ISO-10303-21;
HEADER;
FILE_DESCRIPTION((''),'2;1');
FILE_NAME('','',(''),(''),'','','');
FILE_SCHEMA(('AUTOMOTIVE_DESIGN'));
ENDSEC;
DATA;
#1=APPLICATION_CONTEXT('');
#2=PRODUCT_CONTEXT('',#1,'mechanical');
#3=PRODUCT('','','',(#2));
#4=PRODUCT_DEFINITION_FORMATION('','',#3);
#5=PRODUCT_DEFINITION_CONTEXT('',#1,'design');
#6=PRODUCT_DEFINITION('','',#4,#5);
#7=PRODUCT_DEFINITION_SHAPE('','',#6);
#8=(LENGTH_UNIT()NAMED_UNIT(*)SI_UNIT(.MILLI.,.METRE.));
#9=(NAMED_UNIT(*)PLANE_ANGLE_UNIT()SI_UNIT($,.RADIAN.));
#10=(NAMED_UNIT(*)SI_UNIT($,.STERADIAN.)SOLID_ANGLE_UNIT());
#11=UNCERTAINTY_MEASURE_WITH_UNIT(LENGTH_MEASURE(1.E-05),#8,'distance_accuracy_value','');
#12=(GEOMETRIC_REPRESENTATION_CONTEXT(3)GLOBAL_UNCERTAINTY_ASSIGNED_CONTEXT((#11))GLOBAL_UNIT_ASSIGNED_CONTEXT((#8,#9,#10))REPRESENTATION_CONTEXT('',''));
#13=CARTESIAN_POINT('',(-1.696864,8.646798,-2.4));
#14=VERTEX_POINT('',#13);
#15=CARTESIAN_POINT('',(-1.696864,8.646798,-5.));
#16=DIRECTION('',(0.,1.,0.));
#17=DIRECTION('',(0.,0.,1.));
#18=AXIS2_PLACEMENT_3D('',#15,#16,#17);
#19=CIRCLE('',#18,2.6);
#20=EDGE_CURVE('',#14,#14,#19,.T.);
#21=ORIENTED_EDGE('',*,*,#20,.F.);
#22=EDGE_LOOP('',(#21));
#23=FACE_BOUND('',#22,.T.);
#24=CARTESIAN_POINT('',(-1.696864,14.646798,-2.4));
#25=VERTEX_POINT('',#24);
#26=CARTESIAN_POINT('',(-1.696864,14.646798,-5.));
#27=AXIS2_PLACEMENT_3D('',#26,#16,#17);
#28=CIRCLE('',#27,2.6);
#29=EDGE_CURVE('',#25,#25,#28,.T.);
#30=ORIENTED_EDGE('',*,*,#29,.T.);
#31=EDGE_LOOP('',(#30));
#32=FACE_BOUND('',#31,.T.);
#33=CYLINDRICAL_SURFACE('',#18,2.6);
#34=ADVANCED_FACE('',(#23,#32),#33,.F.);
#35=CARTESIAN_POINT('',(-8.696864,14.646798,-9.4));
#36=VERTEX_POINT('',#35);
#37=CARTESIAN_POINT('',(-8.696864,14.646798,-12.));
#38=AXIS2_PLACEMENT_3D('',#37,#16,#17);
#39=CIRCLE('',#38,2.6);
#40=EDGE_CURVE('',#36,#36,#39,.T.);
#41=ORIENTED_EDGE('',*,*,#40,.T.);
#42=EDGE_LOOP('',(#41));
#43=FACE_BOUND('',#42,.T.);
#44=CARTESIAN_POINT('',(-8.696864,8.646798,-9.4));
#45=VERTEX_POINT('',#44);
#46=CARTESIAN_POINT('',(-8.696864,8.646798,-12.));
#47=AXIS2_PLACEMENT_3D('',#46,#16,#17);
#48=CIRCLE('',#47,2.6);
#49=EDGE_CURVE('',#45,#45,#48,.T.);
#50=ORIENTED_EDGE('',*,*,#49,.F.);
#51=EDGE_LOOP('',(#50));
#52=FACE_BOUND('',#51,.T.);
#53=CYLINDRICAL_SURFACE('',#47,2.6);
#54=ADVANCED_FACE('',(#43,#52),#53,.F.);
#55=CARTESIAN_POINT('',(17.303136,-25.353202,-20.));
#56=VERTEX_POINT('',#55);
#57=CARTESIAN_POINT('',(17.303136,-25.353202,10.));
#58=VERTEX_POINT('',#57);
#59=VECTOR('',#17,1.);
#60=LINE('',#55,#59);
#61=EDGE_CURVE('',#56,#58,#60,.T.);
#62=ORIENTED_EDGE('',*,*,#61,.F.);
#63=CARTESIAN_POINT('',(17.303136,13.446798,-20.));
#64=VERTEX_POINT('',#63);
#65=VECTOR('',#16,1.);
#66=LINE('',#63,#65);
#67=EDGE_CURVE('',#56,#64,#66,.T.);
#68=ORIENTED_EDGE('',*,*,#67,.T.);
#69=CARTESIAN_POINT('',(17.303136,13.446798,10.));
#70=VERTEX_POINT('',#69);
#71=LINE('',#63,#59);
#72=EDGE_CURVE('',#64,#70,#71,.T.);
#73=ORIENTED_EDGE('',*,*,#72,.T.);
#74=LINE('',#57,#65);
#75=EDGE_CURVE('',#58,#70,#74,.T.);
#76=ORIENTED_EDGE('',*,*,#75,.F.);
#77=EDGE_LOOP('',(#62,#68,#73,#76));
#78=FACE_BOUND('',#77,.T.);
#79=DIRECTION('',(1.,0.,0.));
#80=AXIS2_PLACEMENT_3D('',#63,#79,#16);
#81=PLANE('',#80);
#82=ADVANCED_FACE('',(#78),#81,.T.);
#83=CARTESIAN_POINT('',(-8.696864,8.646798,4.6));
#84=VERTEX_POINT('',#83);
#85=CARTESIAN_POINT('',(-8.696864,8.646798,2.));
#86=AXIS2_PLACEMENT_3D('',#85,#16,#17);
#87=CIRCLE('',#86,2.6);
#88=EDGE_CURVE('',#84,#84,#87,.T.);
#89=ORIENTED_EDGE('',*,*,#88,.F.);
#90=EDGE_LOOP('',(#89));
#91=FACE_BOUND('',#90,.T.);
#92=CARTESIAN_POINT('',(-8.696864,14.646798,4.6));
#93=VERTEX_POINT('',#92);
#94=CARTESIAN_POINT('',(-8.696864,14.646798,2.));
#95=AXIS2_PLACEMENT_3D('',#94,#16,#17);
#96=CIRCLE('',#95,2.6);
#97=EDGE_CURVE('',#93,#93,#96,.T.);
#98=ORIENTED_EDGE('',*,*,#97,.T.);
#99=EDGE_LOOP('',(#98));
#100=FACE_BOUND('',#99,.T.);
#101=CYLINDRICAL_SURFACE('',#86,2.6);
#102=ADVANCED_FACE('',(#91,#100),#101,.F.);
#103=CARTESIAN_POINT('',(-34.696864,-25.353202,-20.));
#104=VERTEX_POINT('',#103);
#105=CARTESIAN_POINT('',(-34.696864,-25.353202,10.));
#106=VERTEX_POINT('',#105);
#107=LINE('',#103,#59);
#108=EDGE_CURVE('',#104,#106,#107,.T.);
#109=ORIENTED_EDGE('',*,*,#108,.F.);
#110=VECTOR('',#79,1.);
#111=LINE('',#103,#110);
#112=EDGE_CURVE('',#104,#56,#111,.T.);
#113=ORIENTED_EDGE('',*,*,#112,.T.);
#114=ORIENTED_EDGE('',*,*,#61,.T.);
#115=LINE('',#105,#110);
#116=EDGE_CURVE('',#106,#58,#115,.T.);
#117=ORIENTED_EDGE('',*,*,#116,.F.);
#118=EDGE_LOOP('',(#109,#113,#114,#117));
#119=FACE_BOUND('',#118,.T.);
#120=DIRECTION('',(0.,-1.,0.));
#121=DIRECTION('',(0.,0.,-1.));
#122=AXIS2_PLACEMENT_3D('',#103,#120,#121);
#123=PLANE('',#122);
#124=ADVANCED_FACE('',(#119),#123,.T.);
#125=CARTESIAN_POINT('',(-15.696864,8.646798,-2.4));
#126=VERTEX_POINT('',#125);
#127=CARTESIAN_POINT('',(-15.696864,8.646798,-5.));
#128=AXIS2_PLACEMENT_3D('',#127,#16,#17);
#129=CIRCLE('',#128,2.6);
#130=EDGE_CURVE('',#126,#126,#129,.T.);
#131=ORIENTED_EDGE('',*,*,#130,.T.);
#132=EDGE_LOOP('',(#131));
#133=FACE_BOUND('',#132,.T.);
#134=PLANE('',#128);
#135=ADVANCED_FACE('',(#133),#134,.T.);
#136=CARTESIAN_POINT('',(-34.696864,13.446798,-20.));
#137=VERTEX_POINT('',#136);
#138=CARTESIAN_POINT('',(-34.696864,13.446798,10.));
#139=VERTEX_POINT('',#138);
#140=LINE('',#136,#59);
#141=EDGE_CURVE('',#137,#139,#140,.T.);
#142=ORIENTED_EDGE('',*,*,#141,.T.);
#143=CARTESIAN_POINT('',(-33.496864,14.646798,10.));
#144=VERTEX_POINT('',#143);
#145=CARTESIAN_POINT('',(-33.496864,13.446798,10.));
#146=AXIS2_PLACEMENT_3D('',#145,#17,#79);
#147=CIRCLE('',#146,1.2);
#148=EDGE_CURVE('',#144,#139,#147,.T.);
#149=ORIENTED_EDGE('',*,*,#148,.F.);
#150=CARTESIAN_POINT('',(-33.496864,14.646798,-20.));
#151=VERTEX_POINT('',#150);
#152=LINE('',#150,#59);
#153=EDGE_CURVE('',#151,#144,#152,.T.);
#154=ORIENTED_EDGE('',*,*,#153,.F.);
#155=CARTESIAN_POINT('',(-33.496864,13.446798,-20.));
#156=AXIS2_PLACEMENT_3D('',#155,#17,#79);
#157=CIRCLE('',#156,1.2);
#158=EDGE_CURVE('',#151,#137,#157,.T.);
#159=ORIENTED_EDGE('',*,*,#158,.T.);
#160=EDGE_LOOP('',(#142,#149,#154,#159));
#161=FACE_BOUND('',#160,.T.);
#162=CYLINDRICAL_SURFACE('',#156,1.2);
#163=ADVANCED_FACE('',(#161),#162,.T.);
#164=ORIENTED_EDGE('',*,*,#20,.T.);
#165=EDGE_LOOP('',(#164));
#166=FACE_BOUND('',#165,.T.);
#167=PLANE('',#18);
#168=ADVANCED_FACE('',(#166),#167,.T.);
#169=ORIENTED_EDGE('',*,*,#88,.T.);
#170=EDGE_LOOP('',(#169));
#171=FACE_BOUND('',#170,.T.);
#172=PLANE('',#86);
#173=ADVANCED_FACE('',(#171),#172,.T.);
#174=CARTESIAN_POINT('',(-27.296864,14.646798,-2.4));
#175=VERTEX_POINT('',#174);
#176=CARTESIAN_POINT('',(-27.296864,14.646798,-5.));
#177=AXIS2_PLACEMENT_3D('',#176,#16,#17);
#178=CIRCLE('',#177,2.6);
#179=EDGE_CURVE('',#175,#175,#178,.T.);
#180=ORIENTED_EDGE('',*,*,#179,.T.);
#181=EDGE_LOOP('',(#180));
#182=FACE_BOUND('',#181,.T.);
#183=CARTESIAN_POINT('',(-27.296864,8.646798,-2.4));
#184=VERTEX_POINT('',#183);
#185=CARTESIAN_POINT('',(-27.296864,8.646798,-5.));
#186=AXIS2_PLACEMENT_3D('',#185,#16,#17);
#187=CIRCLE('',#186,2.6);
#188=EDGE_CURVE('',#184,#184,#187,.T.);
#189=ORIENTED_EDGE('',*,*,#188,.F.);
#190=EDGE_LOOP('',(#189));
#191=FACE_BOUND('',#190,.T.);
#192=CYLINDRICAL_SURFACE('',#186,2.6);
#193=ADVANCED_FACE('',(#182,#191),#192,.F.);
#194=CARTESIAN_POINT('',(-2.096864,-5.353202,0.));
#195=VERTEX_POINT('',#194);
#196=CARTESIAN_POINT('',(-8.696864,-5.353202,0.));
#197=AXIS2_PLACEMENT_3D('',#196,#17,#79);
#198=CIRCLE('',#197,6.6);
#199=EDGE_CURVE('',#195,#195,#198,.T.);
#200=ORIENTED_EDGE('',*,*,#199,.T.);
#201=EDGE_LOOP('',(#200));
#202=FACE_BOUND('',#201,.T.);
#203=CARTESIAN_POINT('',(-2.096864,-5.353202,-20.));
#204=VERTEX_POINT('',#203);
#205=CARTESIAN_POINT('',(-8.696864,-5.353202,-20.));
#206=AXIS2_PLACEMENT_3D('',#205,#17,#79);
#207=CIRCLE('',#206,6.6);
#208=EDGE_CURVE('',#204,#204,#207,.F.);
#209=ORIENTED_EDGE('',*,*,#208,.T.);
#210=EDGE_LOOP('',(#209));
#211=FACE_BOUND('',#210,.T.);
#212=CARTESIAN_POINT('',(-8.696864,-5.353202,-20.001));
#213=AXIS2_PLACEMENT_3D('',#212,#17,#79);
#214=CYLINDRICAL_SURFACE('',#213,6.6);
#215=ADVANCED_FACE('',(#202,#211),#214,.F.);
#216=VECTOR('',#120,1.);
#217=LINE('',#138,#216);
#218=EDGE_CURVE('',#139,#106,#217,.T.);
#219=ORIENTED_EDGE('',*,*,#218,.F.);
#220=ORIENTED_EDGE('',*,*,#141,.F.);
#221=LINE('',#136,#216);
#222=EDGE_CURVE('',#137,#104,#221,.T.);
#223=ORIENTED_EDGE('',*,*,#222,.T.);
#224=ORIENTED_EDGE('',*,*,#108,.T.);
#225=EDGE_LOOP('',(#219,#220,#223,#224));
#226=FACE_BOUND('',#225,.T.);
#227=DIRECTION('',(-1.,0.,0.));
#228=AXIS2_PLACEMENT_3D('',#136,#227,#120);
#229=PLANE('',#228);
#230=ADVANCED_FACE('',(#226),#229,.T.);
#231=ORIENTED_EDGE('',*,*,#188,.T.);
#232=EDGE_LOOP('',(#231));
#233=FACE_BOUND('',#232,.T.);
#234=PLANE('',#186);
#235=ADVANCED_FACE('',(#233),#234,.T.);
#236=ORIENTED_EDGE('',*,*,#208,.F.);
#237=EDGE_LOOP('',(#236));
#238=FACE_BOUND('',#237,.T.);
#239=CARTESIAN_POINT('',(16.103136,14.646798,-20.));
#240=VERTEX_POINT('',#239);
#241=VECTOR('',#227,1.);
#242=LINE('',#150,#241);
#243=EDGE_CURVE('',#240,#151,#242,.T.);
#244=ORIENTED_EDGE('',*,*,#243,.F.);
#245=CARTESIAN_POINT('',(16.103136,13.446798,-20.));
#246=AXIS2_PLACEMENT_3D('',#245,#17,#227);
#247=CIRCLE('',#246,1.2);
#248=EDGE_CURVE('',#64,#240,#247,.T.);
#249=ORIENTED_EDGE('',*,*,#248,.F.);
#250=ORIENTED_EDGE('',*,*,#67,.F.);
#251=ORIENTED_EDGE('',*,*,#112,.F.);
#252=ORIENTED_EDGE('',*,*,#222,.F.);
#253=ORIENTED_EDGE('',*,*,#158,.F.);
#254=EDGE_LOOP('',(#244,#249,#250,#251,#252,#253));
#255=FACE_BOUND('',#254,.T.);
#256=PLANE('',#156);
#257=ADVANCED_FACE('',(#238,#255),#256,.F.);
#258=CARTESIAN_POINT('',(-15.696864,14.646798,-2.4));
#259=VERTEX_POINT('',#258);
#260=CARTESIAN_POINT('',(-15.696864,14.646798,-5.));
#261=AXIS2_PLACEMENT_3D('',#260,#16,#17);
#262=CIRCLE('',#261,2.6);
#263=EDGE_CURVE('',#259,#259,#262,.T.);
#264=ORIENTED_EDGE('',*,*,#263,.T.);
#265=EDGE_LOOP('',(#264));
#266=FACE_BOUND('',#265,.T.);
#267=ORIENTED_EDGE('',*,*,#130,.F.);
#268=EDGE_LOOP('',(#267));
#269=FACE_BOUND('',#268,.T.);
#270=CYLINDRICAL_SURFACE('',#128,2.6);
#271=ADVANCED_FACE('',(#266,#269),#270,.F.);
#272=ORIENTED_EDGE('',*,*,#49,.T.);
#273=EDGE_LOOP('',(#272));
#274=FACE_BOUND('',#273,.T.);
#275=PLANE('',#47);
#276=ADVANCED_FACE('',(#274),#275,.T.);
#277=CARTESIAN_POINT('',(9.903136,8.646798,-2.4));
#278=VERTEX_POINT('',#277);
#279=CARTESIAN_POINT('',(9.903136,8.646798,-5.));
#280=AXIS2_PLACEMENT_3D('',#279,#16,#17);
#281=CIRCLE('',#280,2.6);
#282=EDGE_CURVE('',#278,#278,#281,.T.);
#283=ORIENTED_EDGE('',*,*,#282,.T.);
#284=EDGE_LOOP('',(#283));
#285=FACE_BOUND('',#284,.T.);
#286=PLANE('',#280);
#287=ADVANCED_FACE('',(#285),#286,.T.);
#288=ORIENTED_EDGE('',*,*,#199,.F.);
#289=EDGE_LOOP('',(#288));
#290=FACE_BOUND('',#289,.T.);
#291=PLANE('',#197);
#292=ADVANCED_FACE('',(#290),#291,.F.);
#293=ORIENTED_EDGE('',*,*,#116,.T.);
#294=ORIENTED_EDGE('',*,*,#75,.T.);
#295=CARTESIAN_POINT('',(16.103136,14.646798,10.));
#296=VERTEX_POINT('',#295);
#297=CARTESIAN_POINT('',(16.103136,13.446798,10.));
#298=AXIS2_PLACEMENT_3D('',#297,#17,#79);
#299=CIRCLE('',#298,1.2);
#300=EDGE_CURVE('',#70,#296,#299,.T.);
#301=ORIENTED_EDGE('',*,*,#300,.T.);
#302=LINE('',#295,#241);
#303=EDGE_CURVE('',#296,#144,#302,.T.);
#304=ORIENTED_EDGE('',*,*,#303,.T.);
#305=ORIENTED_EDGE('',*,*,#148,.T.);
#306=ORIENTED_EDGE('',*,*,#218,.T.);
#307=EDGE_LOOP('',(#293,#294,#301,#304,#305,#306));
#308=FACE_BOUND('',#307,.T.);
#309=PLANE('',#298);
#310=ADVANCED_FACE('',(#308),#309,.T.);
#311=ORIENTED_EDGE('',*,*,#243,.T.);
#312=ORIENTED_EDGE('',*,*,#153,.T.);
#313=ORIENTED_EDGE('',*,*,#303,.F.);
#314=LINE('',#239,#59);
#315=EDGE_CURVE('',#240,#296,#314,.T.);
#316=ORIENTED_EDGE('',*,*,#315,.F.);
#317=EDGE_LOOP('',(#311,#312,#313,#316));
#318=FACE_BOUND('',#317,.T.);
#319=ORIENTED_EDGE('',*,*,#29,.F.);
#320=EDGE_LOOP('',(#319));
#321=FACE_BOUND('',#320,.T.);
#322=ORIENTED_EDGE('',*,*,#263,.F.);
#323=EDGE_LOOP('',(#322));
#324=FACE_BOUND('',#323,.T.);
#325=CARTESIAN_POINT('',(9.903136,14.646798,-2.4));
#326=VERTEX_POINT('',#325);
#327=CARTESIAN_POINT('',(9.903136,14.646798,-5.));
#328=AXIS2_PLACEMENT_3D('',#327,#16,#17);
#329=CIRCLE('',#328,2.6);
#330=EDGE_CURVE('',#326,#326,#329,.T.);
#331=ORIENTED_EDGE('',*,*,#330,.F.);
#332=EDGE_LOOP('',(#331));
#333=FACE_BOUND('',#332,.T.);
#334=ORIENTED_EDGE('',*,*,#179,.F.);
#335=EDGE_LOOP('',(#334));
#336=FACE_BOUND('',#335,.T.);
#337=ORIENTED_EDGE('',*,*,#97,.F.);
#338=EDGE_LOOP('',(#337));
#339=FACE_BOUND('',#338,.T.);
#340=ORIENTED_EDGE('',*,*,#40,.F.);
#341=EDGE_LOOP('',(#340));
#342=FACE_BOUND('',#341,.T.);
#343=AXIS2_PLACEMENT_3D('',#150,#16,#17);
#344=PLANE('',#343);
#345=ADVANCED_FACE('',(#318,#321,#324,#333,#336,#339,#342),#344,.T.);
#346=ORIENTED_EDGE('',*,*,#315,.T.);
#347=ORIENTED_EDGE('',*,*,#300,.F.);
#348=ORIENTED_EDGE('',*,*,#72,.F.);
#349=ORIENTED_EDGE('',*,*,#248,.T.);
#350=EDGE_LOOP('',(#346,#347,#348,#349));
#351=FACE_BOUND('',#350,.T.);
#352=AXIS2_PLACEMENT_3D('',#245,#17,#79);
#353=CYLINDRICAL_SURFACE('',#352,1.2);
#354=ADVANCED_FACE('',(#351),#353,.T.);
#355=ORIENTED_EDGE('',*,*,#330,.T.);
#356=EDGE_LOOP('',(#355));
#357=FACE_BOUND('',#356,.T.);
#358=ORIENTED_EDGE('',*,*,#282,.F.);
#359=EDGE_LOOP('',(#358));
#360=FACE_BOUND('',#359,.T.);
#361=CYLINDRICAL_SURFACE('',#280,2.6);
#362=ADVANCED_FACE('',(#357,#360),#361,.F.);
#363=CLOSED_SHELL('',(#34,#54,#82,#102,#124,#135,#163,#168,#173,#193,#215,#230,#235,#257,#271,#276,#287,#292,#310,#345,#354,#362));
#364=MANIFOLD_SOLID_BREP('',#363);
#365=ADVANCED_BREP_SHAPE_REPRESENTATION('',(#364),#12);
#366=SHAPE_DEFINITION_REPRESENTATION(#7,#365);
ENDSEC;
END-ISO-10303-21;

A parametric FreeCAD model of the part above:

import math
import FreeCAD as App
import Part
import Sketcher

V = App.Vector
Q = App.Units.Quantity

doc = App.newDocument("Part")
body = doc.addObject("PartDesign::Body", "Body")

# Sketch on XY plane
sketch1 = body.newObject("Sketcher::SketchObject", "Sketch")
sketch1.AttachmentSupport = (doc.getObject("XY_Plane"), [""])
sketch1.MapMode = "FlatFace"
sketch1.addGeometry(Part.LineSegment(V(16.1, 14.6, 0), V(-33.5, 14.6, 0)), False)
sketch1.addGeometry(Part.ArcOfCircle(Part.Circle(V(-33.5, 13.4, 0), V(0, 0, 1), 1.2), math.radians(90), math.radians(180)), False)
sketch1.addGeometry(Part.LineSegment(V(-34.7, 13.4, 0), V(-34.7, -25.4, 0)), False)
sketch1.addGeometry(Part.LineSegment(V(-34.7, -25.4, 0), V(17.3, -25.4, 0)), False)
sketch1.addGeometry(Part.LineSegment(V(17.3, -25.4, 0), V(17.3, 13.4, 0)), False)
sketch1.addGeometry(Part.ArcOfCircle(Part.Circle(V(16.1, 13.4, 0), V(0, 0, 1), 1.2), math.radians(0), math.radians(90)), False)
sketch1.addConstraint(Sketcher.Constraint("Tangent", 0, 2, 1, 1))
sketch1.addConstraint(Sketcher.Constraint("Tangent", 1, 2, 2, 1))
sketch1.addConstraint(Sketcher.Constraint("Coincident", 2, 2, 3, 1))
sketch1.addConstraint(Sketcher.Constraint("Coincident", 3, 2, 4, 1))
sketch1.addConstraint(Sketcher.Constraint("Tangent", 4, 2, 5, 1))
sketch1.addConstraint(Sketcher.Constraint("Tangent", 5, 2, 0, 1))
sketch1.addConstraint(Sketcher.Constraint("Horizontal", 0))
sketch1.addConstraint(Sketcher.Constraint("Vertical", 2))
sketch1.addConstraint(Sketcher.Constraint("Horizontal", 3))
sketch1.addConstraint(Sketcher.Constraint("Vertical", 4))
sketch1.addConstraint(Sketcher.Constraint("Equal", 1, 5))
sketch1.addConstraint(Sketcher.Constraint("Radius", 1, Q("1.2 mm")))
sketch1.addConstraint(Sketcher.Constraint("DistanceX", 3, 1, 3, 2, Q("52 mm")))
sketch1.addConstraint(Sketcher.Constraint("DistanceY", 2, 2, 2, 1, Q("38.8 mm")))
sketch1.addConstraint(Sketcher.Constraint("DistanceY", -1, 1, 1, 3, Q("13.446798 mm")))
sketch1.addConstraint(Sketcher.Constraint("DistanceX", 1, 3, -1, 1, Q("33.496864 mm")))
pad1 = body.newObject("PartDesign::Pad", "Pad")
pad1.Profile = sketch1
pad1.Length = 20
pad1.Reversed = True

# Sketch on XY plane
sketch2 = body.newObject("Sketcher::SketchObject", "Sketch001")
sketch2.AttachmentSupport = (doc.getObject("XY_Plane"), [""])
sketch2.MapMode = "FlatFace"
sketch2.AttachmentOffset = App.Placement(V(0, 0, 10), App.Rotation())
sketch2.addGeometry(Part.LineSegment(V(17.3, -25.4, 0), V(17.3, 13.4, 0)), False)
sketch2.addGeometry(Part.ArcOfCircle(Part.Circle(V(16.1, 13.4, 0), V(0, 0, 1), 1.2), math.radians(0), math.radians(90)), False)
sketch2.addGeometry(Part.LineSegment(V(16.1, 14.6, 0), V(-33.5, 14.6, 0)), False)
sketch2.addGeometry(Part.ArcOfCircle(Part.Circle(V(-33.5, 13.4, 0), V(0, 0, 1), 1.2), math.radians(90), math.radians(180)), False)
sketch2.addGeometry(Part.LineSegment(V(-34.7, 13.4, 0), V(-34.7, -25.4, 0)), False)
sketch2.addGeometry(Part.LineSegment(V(-34.7, -25.4, 0), V(17.3, -25.4, 0)), False)
sketch2.addConstraint(Sketcher.Constraint("Tangent", 0, 2, 1, 1))
sketch2.addConstraint(Sketcher.Constraint("Tangent", 1, 2, 2, 1))
sketch2.addConstraint(Sketcher.Constraint("Tangent", 2, 2, 3, 1))
sketch2.addConstraint(Sketcher.Constraint("Tangent", 3, 2, 4, 1))
sketch2.addConstraint(Sketcher.Constraint("Coincident", 4, 2, 5, 1))
sketch2.addConstraint(Sketcher.Constraint("Coincident", 5, 2, 0, 1))
sketch2.addConstraint(Sketcher.Constraint("Vertical", 0))
sketch2.addConstraint(Sketcher.Constraint("Horizontal", 2))
sketch2.addConstraint(Sketcher.Constraint("Vertical", 4))
sketch2.addConstraint(Sketcher.Constraint("Horizontal", 5))
sketch2.addConstraint(Sketcher.Constraint("Equal", 1, 3))
sketch2.addConstraint(Sketcher.Constraint("Radius", 1, Q("1.2 mm")))
sketch2.addConstraint(Sketcher.Constraint("DistanceX", 5, 1, 5, 2, Q("52 mm")))
sketch2.addConstraint(Sketcher.Constraint("DistanceY", 0, 1, 0, 2, Q("38.8 mm")))
sketch2.addConstraint(Sketcher.Constraint("DistanceY", -1, 1, 1, 3, Q("13.446798 mm")))
sketch2.addConstraint(Sketcher.Constraint("DistanceX", -1, 1, 1, 3, Q("16.103136 mm")))
pad2 = body.newObject("PartDesign::Pad", "Pad001")
pad2.Profile = sketch2
pad2.Length = 10
pad2.Reversed = True

# Sketch on XZ plane
sketch3 = body.newObject("Sketcher::SketchObject", "Sketch002")
sketch3.AttachmentSupport = (doc.getObject("XZ_Plane"), [""])
sketch3.MapMode = "FlatFace"
sketch3.AttachmentOffset = App.Placement(V(0, 0, -14.646798), App.Rotation())
sketch3.addGeometry(Part.Circle(V(-27.3, -5, 0), V(0, 0, 1), 2.6), False)
sketch3.addGeometry(Part.Circle(V(-15.7, -5, 0), V(0, 0, 1), 2.6), False)
sketch3.addGeometry(Part.Circle(V(-8.7, -12, 0), V(0, 0, 1), 2.6), False)
sketch3.addGeometry(Part.Circle(V(-8.7, 2, 0), V(0, 0, 1), 2.6), False)
sketch3.addGeometry(Part.Circle(V(-1.7, -5, 0), V(0, 0, 1), 2.6), False)
sketch3.addGeometry(Part.Circle(V(9.9, -5, 0), V(0, 0, 1), 2.6), False)
sketch3.addConstraint(Sketcher.Constraint("Equal", 0, 1))
sketch3.addConstraint(Sketcher.Constraint("Equal", 1, 2))
sketch3.addConstraint(Sketcher.Constraint("Equal", 2, 3))
sketch3.addConstraint(Sketcher.Constraint("Equal", 3, 4))
sketch3.addConstraint(Sketcher.Constraint("Equal", 4, 5))
sketch3.addConstraint(Sketcher.Constraint("Horizontal", 0, 3, 1, 3))
sketch3.addConstraint(Sketcher.Constraint("Horizontal", 1, 3, 4, 3))
sketch3.addConstraint(Sketcher.Constraint("Horizontal", 4, 3, 5, 3))
sketch3.addConstraint(Sketcher.Constraint("Vertical", 2, 3, 3, 3))
sketch3.addConstraint(Sketcher.Constraint("Diameter", 0, Q("5.2 mm")))
sketch3.addConstraint(Sketcher.Constraint("DistanceY", 0, 3, -1, 1, Q("5 mm")))
sketch3.addConstraint(Sketcher.Constraint("DistanceY", 2, 3, -1, 1, Q("12 mm")))
sketch3.addConstraint(Sketcher.Constraint("DistanceY", -1, 1, 3, 3, Q("2 mm")))
sketch3.addConstraint(Sketcher.Constraint("DistanceX", 1, 3, 2, 3, Q("7 mm")))
sketch3.addConstraint(Sketcher.Constraint("DistanceX", 2, 3, 4, 3, Q("7 mm")))
sketch3.addConstraint(Sketcher.Constraint("DistanceX", 0, 3, 1, 3, Q("11.6 mm")))
sketch3.addConstraint(Sketcher.Constraint("DistanceX", 4, 3, 5, 3, Q("11.6 mm")))
sketch3.addConstraint(Sketcher.Constraint("DistanceX", 0, 3, -1, 1, Q("27.296864 mm")))
pocket1 = body.newObject("PartDesign::Pocket", "Pocket")
pocket1.Profile = sketch3
pocket1.Length = 6
pocket1.Reversed = True

# Sketch on XY plane
sketch4 = body.newObject("Sketcher::SketchObject", "Sketch003")
sketch4.AttachmentSupport = (doc.getObject("XY_Plane"), [""])
sketch4.MapMode = "FlatFace"
sketch4.addGeometry(Part.Circle(V(-9, -5, 0), V(0, 0, 1), 7), False)
sketch4.addConstraint(Sketcher.Constraint("Diameter", 0, Q("13.2 mm")))
sketch4.addConstraint(Sketcher.Constraint("DistanceY", 0, 3, -1, 1, Q("5.353202 mm")))
sketch4.addConstraint(Sketcher.Constraint("DistanceX", 0, 3, -1, 1, Q("8.696864 mm")))
pocket2 = body.newObject("PartDesign::Pocket", "Pocket001")
pocket2.Profile = sketch4
pocket2.Type = "UpToFirst"

doc.recompute()
